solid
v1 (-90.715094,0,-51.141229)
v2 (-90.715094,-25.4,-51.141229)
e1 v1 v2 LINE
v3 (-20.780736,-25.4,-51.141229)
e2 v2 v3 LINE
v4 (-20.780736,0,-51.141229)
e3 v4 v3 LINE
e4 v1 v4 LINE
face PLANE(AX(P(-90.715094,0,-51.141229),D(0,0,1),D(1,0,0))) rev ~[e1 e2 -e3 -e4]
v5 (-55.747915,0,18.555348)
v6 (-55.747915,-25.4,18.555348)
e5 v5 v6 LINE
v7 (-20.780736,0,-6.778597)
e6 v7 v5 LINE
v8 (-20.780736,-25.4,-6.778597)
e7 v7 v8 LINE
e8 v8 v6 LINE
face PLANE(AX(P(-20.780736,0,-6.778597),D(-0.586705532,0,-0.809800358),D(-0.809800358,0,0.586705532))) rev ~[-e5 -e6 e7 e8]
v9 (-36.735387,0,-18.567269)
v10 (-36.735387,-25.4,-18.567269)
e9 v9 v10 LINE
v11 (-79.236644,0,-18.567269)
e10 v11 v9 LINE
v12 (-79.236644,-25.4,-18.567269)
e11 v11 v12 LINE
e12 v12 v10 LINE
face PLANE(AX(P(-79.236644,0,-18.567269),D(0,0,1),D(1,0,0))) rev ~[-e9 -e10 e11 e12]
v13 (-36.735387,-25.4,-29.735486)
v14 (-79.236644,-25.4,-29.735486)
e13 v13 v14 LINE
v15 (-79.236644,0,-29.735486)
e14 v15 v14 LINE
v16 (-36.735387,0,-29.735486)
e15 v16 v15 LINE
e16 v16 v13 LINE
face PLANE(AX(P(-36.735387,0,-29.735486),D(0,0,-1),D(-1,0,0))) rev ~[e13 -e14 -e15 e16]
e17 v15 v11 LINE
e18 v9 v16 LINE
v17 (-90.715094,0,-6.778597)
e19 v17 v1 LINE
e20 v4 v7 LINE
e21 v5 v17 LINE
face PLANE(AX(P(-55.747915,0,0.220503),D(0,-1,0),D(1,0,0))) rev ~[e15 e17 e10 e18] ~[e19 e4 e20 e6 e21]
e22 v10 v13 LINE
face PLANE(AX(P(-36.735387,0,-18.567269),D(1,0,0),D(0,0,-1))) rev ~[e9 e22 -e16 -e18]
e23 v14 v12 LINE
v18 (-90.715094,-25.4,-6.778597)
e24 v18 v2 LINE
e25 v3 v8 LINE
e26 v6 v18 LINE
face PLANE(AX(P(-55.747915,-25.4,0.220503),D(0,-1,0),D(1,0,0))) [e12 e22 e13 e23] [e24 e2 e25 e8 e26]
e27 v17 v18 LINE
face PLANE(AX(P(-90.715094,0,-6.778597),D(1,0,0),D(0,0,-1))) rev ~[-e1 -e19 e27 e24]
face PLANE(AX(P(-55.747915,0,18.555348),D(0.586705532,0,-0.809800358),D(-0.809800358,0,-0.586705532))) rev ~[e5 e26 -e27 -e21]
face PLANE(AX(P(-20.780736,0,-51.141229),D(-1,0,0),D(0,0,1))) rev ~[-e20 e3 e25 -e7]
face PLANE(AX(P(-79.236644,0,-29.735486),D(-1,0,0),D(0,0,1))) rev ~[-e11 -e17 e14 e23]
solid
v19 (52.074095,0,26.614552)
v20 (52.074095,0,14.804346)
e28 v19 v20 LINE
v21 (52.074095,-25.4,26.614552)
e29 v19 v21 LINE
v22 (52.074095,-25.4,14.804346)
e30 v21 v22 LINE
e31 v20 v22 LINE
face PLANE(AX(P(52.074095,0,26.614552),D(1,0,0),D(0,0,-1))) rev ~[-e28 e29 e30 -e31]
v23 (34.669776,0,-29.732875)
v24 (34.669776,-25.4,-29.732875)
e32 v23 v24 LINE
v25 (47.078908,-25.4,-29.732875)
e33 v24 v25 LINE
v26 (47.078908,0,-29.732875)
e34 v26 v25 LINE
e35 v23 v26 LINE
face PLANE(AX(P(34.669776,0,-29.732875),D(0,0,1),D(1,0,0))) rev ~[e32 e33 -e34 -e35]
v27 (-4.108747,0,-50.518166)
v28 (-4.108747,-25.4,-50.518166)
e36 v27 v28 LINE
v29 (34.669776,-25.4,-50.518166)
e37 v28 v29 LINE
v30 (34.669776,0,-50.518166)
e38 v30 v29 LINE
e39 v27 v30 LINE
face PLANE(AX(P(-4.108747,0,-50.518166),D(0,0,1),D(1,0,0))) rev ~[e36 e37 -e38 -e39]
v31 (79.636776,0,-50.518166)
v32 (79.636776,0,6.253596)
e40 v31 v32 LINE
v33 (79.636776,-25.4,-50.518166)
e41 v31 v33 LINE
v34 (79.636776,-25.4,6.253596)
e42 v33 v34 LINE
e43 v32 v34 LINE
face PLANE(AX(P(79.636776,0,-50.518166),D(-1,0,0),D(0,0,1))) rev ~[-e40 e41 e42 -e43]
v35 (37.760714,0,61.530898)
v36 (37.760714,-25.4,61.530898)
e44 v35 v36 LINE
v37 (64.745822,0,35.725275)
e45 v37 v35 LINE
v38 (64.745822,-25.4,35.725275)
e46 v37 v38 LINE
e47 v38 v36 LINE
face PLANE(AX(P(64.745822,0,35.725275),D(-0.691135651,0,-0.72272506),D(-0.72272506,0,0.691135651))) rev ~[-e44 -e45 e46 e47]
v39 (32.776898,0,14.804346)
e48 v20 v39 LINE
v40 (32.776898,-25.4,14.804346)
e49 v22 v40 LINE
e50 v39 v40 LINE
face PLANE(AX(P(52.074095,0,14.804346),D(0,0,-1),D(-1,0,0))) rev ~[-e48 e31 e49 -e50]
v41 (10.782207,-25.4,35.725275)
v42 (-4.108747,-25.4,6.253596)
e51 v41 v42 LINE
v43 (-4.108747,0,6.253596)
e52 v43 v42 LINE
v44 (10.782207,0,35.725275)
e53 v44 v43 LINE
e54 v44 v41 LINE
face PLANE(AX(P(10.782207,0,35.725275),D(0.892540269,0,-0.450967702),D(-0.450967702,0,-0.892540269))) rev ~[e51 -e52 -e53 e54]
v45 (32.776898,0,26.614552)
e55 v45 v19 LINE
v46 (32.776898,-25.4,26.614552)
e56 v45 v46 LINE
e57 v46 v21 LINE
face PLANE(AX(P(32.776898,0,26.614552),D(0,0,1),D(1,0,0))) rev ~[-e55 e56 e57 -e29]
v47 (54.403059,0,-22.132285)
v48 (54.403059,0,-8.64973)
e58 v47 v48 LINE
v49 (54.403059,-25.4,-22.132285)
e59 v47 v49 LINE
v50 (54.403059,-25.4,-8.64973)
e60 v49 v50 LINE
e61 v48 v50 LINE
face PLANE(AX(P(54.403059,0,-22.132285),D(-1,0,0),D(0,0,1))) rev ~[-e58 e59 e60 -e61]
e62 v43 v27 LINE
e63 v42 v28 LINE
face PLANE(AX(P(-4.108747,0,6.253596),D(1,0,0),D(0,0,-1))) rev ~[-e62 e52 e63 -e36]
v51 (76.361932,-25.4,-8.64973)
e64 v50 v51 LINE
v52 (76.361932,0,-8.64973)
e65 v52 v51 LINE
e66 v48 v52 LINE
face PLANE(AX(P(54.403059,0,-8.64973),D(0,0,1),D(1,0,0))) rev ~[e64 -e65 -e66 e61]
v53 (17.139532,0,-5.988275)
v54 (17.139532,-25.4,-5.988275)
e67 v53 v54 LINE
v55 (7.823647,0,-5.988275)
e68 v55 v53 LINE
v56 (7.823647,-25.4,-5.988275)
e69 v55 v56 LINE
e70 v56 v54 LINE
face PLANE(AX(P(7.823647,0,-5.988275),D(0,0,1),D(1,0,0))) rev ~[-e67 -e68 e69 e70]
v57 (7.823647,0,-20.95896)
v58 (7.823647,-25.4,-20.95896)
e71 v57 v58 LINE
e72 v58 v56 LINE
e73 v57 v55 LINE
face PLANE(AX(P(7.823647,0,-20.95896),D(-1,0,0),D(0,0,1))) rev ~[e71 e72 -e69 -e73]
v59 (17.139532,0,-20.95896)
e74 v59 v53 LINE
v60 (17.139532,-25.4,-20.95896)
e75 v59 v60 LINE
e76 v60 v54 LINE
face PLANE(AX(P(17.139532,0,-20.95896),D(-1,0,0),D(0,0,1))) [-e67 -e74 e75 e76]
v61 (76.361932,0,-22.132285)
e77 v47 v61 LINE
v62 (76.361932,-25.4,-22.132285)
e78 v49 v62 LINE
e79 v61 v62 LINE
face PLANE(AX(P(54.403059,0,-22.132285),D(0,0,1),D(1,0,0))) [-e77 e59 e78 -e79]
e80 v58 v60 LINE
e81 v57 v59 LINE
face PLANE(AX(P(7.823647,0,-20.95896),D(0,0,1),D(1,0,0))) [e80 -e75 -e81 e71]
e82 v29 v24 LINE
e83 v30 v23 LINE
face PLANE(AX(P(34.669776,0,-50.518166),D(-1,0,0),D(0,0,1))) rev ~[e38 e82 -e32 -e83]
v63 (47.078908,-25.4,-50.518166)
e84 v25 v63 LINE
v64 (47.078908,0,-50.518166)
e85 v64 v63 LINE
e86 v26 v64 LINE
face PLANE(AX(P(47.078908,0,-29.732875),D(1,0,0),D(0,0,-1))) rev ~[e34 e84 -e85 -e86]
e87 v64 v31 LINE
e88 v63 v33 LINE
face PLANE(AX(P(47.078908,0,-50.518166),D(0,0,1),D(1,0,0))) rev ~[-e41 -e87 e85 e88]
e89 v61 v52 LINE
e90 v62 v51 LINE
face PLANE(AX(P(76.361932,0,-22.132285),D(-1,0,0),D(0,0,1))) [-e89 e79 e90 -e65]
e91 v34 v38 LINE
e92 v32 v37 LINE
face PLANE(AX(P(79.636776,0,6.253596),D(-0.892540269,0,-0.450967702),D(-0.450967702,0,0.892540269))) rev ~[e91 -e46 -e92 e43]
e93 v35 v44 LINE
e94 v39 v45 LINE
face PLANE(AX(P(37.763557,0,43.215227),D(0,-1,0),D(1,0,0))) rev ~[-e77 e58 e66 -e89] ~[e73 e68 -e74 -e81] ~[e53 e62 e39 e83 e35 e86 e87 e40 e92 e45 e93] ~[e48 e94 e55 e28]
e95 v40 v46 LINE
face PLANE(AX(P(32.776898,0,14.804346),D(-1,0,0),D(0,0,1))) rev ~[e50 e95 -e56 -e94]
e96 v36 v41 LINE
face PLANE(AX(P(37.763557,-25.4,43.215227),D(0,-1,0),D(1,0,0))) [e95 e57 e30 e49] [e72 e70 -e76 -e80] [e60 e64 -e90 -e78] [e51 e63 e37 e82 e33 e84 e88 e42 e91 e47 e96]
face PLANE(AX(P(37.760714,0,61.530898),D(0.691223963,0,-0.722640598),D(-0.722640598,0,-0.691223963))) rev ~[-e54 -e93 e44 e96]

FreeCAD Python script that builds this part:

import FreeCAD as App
import Part
import Sketcher
Q = App.Units.Quantity


def add_polygon(sketch, points):
    """Adds a closed chain of lines whose ends are joined by coincident constraints."""
    first, n = sketch.GeometryCount, len(points)
    for a, b in zip(points, points[1:] + points[:1]):
        sketch.addGeometry(Part.LineSegment(App.Vector(*a, 0), App.Vector(*b, 0)), False)
    for i in range(n):
        sketch.addConstraint(Sketcher.Constraint("Coincident", first + i, 2, first + (i + 1) % n, 1))

doc = App.newDocument("Part")
body = doc.addObject("PartDesign::Body", "Body")

sketch1 = doc.addObject("Sketcher::SketchObject", "Sketch")
body.addObject(sketch1)
sketch1.AttachmentSupport = (doc.XZ_Plane, [""])
sketch1.MapMode = "FlatFace"
add_polygon(sketch1, [(38, 62), (11, 36), (-4, 6), (-4, -51), (35, -51), (35, -30), (47, -30), (47, -51), (80, -51), (80, 6), (65, 36)])
add_polygon(sketch1, [(17, -21), (8, -21), (8, -6), (17, -6)])
add_polygon(sketch1, [(76, -22), (54, -22), (54, -9), (76, -9)])
add_polygon(sketch1, [(52, 15), (33, 15), (33, 27), (52, 27)])
sketch1.addConstraint([
    Sketcher.Constraint("Vertical", 2),
    Sketcher.Constraint("Horizontal", 3),
    Sketcher.Constraint("Vertical", 4),
    Sketcher.Constraint("Horizontal", 5),
    Sketcher.Constraint("Vertical", 6),
    Sketcher.Constraint("Horizontal", 7),
    Sketcher.Constraint("Vertical", 8),
    Sketcher.Constraint("Horizontal", 11),
    Sketcher.Constraint("Vertical", 12),
    Sketcher.Constraint("Horizontal", 13),
    Sketcher.Constraint("Vertical", 14),
    Sketcher.Constraint("Horizontal", 15),
    Sketcher.Constraint("Vertical", 16),
    Sketcher.Constraint("Horizontal", 17),
    Sketcher.Constraint("Vertical", 18),
    Sketcher.Constraint("Horizontal", 19),
    Sketcher.Constraint("Vertical", 20),
    Sketcher.Constraint("Horizontal", 21),
    Sketcher.Constraint("Vertical", 22),
    Sketcher.Constraint("Horizontal", 3, 2, 6, 2),
    Sketcher.Constraint("Horizontal", 1, 2, 8, 2),
    Sketcher.Constraint("Horizontal", 0, 2, 9, 2),
    Sketcher.Constraint("Equal", 1, 9),
    Sketcher.Constraint("Distance", 1, Q("1.3 in")),
    Sketcher.Constraint("Distance", 10, Q("1.47 in")),
    Sketcher.Constraint("DistanceX", 7, 1, 7, 2, 32.557868),
    Sketcher.Constraint("DistanceY", 2, 2, 2, 1, 56.771762),
    Sketcher.Constraint("DistanceY", 4, 1, 4, 2, 20.785291),
    Sketcher.Constraint("DistanceY", -1, 1, 10, 2, 61.530898),
    Sketcher.Constraint("DistanceX", 0, 2, 5, 2, 36.296701),
    Sketcher.Constraint("DistanceX", 3, 2, 7, 2, 44.967),
    Sketcher.Constraint("DistanceY", 4, 2, 12, 2, 23.744601),
    Sketcher.Constraint("Distance", 0, 37.33323),
    Sketcher.Constraint("DistanceX", 3, 1, 3, 2, 38.778522),
    Sketcher.Constraint("DistanceX", 11, 2, 11, 1, 9.315885),
    Sketcher.Constraint("DistanceX", 15, 2, 15, 1, 21.958873),
    Sketcher.Constraint("DistanceX", 19, 2, 19, 1, 19.297197),
    Sketcher.Constraint("DistanceY", 12, 1, 12, 2, 14.970685),
    Sketcher.Constraint("DistanceY", 16, 1, 16, 2, 13.482555),
    Sketcher.Constraint("DistanceY", 20, 1, 20, 2, 11.810206),
    Sketcher.Constraint("DistanceX", -1, 1, 13, 2, 17.139532),
    Sketcher.Constraint("DistanceX", -1, 1, 15, 2, 54.403059),
    Sketcher.Constraint("DistanceY", 16, 2, -1, 1, 8.64973),
    Sketcher.Constraint("DistanceX", 11, 2, 4, 2, 26.846129),
    Sketcher.Constraint("DistanceY", 13, 2, 19, 2, 20.792621),
    Sketcher.Constraint("DistanceX", 0, 2, 19, 2, 21.994691),
])
pad1 = doc.addObject("PartDesign::Pad", "Pad")
body.addObject(pad1)
pad1.Profile = sketch1
pad1.Length = Q("1 in")
body2 = doc.addObject("PartDesign::Body", "Body001")

sketch2 = doc.addObject("Sketcher::SketchObject", "Sketch001")
body2.addObject(sketch2)
sketch2.AttachmentSupport = (doc.getObject("XZ_Plane001"), [""])
sketch2.MapMode = "FlatFace"
add_polygon(sketch2, [(-56, 19), (-91, -7), (-91, -51), (-21, -51), (-21, -7)])
add_polygon(sketch2, [(-79, -30), (-79, -19), (-37, -19), (-37, -30)])
sketch2.addConstraint([
    Sketcher.Constraint("Vertical", 1),
    Sketcher.Constraint("Horizontal", 2),
    Sketcher.Constraint("Vertical", 3),
    Sketcher.Constraint("Vertical", 5),
    Sketcher.Constraint("Horizontal", 6),
    Sketcher.Constraint("Vertical", 7),
    Sketcher.Constraint("Horizontal", 8),
    Sketcher.Constraint("Horizontal", 0, 2, 3, 2),
    Sketcher.Constraint("Equal", 0, 4),
    Sketcher.Constraint("Distance", 0, Q("1.7 in")),
    Sketcher.Constraint("DistanceX", 4, 2, -1, 1, Q("2.1947998 in")),
    Sketcher.Constraint("DistanceX", 2, 1, 2, 2, 69.934359),
    Sketcher.Constraint("DistanceX", 6, 1, 6, 2, 42.501257),
    Sketcher.Constraint("DistanceY", 1, 2, 1, 1, 44.362633),
    Sketcher.Constraint("DistanceY", 5, 1, 5, 2, 11.168218),
    Sketcher.Constraint("DistanceY", 1, 2, -1, 1, 51.141229),
    Sketcher.Constraint("DistanceY", 5, 2, -1, 1, 18.567269),
    Sketcher.Constraint("DistanceX", 0, 2, 5, 2, 11.478451),
])
pad2 = doc.addObject("PartDesign::Pad", "Pad001")
body2.addObject(pad2)
pad2.Profile = sketch2
pad2.Length = Q("1 in")

doc.recompute()
